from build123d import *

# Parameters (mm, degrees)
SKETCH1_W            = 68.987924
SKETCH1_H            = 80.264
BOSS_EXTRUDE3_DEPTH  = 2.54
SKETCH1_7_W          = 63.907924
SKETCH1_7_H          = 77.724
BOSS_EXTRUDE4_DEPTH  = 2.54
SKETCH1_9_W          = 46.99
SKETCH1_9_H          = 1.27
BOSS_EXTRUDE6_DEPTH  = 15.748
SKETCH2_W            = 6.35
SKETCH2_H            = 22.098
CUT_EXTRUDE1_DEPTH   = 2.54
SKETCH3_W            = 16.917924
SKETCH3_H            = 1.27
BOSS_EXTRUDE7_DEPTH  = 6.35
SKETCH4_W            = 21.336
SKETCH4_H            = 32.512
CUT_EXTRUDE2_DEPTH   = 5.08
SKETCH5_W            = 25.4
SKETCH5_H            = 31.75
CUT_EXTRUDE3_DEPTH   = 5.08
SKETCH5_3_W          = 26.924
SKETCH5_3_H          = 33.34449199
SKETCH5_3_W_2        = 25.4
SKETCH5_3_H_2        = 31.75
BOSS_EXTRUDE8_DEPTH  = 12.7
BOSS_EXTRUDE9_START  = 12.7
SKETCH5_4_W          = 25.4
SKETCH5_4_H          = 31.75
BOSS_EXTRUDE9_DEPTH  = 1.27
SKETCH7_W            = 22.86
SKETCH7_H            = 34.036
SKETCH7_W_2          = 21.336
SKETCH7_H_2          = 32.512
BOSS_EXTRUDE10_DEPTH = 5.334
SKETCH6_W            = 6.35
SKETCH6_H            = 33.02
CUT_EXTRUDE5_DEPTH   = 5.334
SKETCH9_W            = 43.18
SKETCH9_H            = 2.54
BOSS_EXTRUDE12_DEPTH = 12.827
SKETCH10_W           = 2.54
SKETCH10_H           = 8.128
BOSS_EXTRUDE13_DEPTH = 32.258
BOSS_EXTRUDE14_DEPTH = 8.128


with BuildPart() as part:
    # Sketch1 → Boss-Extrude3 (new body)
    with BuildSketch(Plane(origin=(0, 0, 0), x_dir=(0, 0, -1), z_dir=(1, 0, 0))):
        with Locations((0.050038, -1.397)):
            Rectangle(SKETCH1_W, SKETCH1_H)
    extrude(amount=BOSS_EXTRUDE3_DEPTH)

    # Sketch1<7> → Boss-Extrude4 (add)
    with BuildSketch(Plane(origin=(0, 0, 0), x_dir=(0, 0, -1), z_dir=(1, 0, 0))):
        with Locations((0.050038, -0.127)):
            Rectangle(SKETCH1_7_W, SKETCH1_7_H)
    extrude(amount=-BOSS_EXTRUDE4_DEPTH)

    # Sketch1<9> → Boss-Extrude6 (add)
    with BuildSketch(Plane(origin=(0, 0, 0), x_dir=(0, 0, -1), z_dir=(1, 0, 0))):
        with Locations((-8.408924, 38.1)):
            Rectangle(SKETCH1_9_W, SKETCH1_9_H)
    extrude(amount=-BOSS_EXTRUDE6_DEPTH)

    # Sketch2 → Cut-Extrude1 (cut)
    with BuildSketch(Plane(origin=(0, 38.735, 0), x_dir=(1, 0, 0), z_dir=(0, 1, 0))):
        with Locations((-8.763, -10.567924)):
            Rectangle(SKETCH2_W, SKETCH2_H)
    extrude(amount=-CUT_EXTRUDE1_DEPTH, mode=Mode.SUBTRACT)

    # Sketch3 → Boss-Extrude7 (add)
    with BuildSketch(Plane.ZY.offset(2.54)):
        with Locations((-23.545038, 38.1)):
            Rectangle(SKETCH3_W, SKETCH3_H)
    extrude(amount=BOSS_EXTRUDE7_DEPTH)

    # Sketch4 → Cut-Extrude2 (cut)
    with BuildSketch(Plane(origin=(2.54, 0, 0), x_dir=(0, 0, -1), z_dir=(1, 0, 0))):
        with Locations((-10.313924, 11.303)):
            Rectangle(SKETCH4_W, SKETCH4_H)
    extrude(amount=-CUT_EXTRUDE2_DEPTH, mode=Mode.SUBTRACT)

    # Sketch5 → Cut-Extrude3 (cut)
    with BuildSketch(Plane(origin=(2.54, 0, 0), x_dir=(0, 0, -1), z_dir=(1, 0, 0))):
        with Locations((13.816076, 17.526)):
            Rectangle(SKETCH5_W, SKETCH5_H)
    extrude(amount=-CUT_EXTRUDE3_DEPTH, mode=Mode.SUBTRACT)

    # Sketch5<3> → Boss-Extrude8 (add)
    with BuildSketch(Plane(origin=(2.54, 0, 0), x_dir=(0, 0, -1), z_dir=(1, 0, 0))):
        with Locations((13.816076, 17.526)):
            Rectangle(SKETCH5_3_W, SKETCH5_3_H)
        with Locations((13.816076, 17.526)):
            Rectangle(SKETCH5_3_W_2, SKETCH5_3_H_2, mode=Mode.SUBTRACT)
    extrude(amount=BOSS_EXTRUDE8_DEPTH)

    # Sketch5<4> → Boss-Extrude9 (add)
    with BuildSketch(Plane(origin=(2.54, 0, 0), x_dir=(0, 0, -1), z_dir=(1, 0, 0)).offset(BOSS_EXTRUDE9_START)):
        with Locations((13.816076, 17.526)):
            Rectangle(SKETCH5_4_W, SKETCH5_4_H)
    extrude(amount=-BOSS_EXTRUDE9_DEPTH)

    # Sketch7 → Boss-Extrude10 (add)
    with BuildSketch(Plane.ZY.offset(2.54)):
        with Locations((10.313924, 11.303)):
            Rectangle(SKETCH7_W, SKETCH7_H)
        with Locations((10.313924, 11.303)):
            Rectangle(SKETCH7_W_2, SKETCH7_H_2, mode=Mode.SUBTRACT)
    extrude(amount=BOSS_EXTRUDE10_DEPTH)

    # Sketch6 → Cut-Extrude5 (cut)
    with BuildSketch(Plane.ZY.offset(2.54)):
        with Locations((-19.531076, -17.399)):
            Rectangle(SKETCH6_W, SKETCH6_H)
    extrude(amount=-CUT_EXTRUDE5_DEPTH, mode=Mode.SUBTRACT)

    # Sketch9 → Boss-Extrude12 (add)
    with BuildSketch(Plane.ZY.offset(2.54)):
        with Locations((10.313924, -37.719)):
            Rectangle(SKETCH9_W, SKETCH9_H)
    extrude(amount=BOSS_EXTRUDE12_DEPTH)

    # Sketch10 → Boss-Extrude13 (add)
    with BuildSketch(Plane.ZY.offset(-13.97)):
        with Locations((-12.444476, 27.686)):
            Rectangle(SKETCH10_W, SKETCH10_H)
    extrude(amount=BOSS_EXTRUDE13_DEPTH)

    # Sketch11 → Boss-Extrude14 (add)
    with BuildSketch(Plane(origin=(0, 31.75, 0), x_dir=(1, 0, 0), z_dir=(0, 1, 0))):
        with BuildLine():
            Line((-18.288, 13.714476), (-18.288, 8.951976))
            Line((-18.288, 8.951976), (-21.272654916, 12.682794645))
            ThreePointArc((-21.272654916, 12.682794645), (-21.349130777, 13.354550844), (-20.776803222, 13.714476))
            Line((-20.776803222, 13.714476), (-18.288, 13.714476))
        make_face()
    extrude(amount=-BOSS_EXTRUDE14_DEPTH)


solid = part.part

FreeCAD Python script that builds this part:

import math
import FreeCAD as App
import Part
import Sketcher

V = App.Vector
Q = App.Units.Quantity

doc = App.newDocument("Part")
body = doc.addObject("PartDesign::Body", "Body")

# Sketch on YZ plane
sketch1 = body.newObject("Sketcher::SketchObject", "Sketch")
sketch1.AttachmentSupport = (doc.getObject("YZ_Plane"), [""])
sketch1.MapMode = "FlatFace"
sketch1.addGeometry([
    Part.LineSegment(V(39, 34, 0), V(-42, 34, 0)),
    Part.LineSegment(V(-42, 34, 0), V(-42, -35, 0)),
    Part.LineSegment(V(-42, -35, 0), V(39, -35, 0)),
    Part.LineSegment(V(39, -35, 0), V(39, 34, 0)),
], False)
sketch1.addConstraint([
    Sketcher.Constraint("Coincident", 0, 2, 1, 1),
    Sketcher.Constraint("Coincident", 1, 2, 2, 1),
    Sketcher.Constraint("Coincident", 2, 2, 3, 1),
    Sketcher.Constraint("Coincident", 3, 2, 0, 1),
    Sketcher.Constraint("Horizontal", 0),
    Sketcher.Constraint("Vertical", 1),
    Sketcher.Constraint("Horizontal", 2),
    Sketcher.Constraint("Vertical", 3),
    Sketcher.Constraint("DistanceX", 0, 2, 0, 1, Q("3.16 in")),
    Sketcher.Constraint("DistanceY", 1, 2, -1, 1, Q("1.36 in")),
    Sketcher.Constraint("DistanceX", 0, 2, -1, 1, Q("1.635 in")),
    Sketcher.Constraint("DistanceY", 1, 2, 1, 1, Q("68.987924 mm")),
])
pad1 = body.newObject("PartDesign::Pad", "Pad")
pad1.Profile = sketch1
pad1.Length = Q("0.1 in")

# Sketch on YZ plane
sketch2 = body.newObject("Sketcher::SketchObject", "Sketch001")
sketch2.AttachmentSupport = (doc.getObject("YZ_Plane"), [""])
sketch2.MapMode = "FlatFace"
sketch2.addGeometry([
    Part.LineSegment(V(39, 32, 0), V(-39, 32, 0)),
    Part.LineSegment(V(-39, 32, 0), V(-39, -32, 0)),
    Part.LineSegment(V(-39, -32, 0), V(39, -32, 0)),
    Part.LineSegment(V(39, -32, 0), V(39, 32, 0)),
], False)
sketch2.addConstraint([
    Sketcher.Constraint("Coincident", 0, 2, 1, 1),
    Sketcher.Constraint("Coincident", 1, 2, 2, 1),
    Sketcher.Constraint("Coincident", 2, 2, 3, 1),
    Sketcher.Constraint("Coincident", 3, 2, 0, 1),
    Sketcher.Constraint("Horizontal", 0),
    Sketcher.Constraint("Vertical", 1),
    Sketcher.Constraint("Horizontal", 2),
    Sketcher.Constraint("Vertical", 3),
    Sketcher.Constraint("DistanceX", 0, 2, 0, 1, Q("3.06 in")),
    Sketcher.Constraint("DistanceY", 1, 2, -1, 1, Q("1.26 in")),
    Sketcher.Constraint("DistanceX", 0, 2, -1, 1, Q("1.535 in")),
    Sketcher.Constraint("DistanceY", 1, 2, 1, 1, Q("63.907924 mm")),
])
pad2 = body.newObject("PartDesign::Pad", "Pad001")
pad2.Profile = sketch2
pad2.Length = Q("0.1 in")
pad2.Reversed = True

# Sketch on YZ plane
sketch3 = body.newObject("Sketcher::SketchObject", "Sketch002")
sketch3.AttachmentSupport = (doc.getObject("YZ_Plane"), [""])
sketch3.MapMode = "FlatFace"
sketch3.addGeometry([
    Part.LineSegment(V(38.7, 31.9, 0), V(37.5, 31.9, 0)),
    Part.LineSegment(V(37.5, 31.9, 0), V(37.5, -15.1, 0)),
    Part.LineSegment(V(37.5, -15.1, 0), V(38.7, -15.1, 0)),
    Part.LineSegment(V(38.7, -15.1, 0), V(38.7, 31.9, 0)),
], False)
sketch3.addConstraint([
    Sketcher.Constraint("Coincident", 0, 2, 1, 1),
    Sketcher.Constraint("Coincident", 1, 2, 2, 1),
    Sketcher.Constraint("Coincident", 2, 2, 3, 1),
    Sketcher.Constraint("Coincident", 3, 2, 0, 1),
    Sketcher.Constraint("Horizontal", 0),
    Sketcher.Constraint("Vertical", 1),
    Sketcher.Constraint("Horizontal", 2),
    Sketcher.Constraint("Vertical", 3),
    Sketcher.Constraint("DistanceX", 0, 2, 0, 1, Q("0.05 in")),
    Sketcher.Constraint("DistanceY", 1, 2, 1, 1, Q("1.85 in")),
    Sketcher.Constraint("DistanceX", -1, 1, 0, 2, Q("1.475 in")),
    Sketcher.Constraint("DistanceY", -1, 1, 0, 2, Q("31.903924 mm")),
])
pad3 = body.newObject("PartDesign::Pad", "Pad002")
pad3.Profile = sketch3
pad3.Length = Q("0.62 in")
pad3.Reversed = True

# Sketch on XZ plane
sketch4 = body.newObject("Sketcher::SketchObject", "Sketch003")
sketch4.AttachmentSupport = (doc.getObject("XZ_Plane"), [""])
sketch4.MapMode = "FlatFace"
sketch4.AttachmentOffset = App.Placement(V(0, 0, -1.525 * 25.4), App.Rotation())
sketch4.addGeometry([
    Part.LineSegment(V(-12, 0, 0), V(-12, 22, 0)),
    Part.LineSegment(V(-12, 22, 0), V(-6, 22, 0)),
    Part.LineSegment(V(-6, 22, 0), V(-6, 0, 0)),
    Part.LineSegment(V(-6, 0, 0), V(-12, 0, 0)),
], False)
sketch4.addConstraint([
    Sketcher.Constraint("Coincident", 0, 2, 1, 1),
    Sketcher.Constraint("Coincident", 1, 2, 2, 1),
    Sketcher.Constraint("Coincident", 2, 2, 3, 1),
    Sketcher.Constraint("Coincident", 3, 2, 0, 1),
    Sketcher.Constraint("Vertical", 0),
    Sketcher.Constraint("Horizontal", 1),
    Sketcher.Constraint("Vertical", 2),
    Sketcher.Constraint("Horizontal", 3),
    Sketcher.Constraint("DistanceX", 1, 1, 1, 2, Q("0.25 in")),
    Sketcher.Constraint("DistanceY", 0, 1, 0, 2, Q("0.87 in")),
    Sketcher.Constraint("DistanceX", 0, 2, -1, 1, Q("0.47 in")),
    Sketcher.Constraint("DistanceY", -1, 1, 0, 2, Q("21.616924 mm")),
])
pocket1 = body.newObject("PartDesign::Pocket", "Pocket")
pocket1.Profile = sketch4
pocket1.Length = Q("0.1 in")
pocket1.Reversed = True

# Sketch on YZ plane
sketch5 = body.newObject("Sketcher::SketchObject", "Sketch004")
sketch5.AttachmentSupport = (doc.getObject("YZ_Plane"), [""])
sketch5.MapMode = "FlatFace"
sketch5.AttachmentOffset = App.Placement(V(0, 0, -0.1 * 25.4), App.Rotation())
sketch5.addGeometry([
    Part.LineSegment(V(38.7, -32, 0), V(37.5, -32, 0)),
    Part.LineSegment(V(37.5, -32, 0), V(37.5, -15.1, 0)),
    Part.LineSegment(V(37.5, -15.1, 0), V(38.7, -15.1, 0)),
    Part.LineSegment(V(38.7, -15.1, 0), V(38.7, -32, 0)),
], False)
sketch5.addConstraint([
    Sketcher.Constraint("Coincident", 0, 2, 1, 1),
    Sketcher.Constraint("Coincident", 1, 2, 2, 1),
    Sketcher.Constraint("Coincident", 2, 2, 3, 1),
    Sketcher.Constraint("Coincident", 3, 2, 0, 1),
    Sketcher.Constraint("Horizontal", 0),
    Sketcher.Constraint("Vertical", 1),
    Sketcher.Constraint("Horizontal", 2),
    Sketcher.Constraint("Vertical", 3),
    Sketcher.Constraint("DistanceX", 0, 2, 0, 1, Q("0.05 in")),
    Sketcher.Constraint("DistanceY", 0, 2, -1, 1, Q("1.26 in")),
    Sketcher.Constraint("DistanceX", -1, 1, 0, 2, Q("1.475 in")),
    Sketcher.Constraint("DistanceY", 1, 1, 1, 2, Q("16.917924 mm")),
])
pad4 = body.newObject("PartDesign::Pad", "Pad003")
pad4.Profile = sketch5
pad4.Length = Q("0.25 in")
pad4.Reversed = True

# Sketch on YZ plane
sketch6 = body.newObject("Sketcher::SketchObject", "Sketch005")
sketch6.AttachmentSupport = (doc.getObject("YZ_Plane"), [""])
sketch6.MapMode = "FlatFace"
sketch6.AttachmentOffset = App.Placement(V(0, 0, 0.1 * 25.4), App.Rotation())
sketch6.addGeometry([
    Part.LineSegment(V(28, 21, 0), V(-5, 21, 0)),
    Part.LineSegment(V(-5, 21, 0), V(-5, 0, 0)),
    Part.LineSegment(V(-5, 0, 0), V(28, 0, 0)),
    Part.LineSegment(V(28, 0, 0), V(28, 21, 0)),
], False)
sketch6.addConstraint([
    Sketcher.Constraint("Coincident", 0, 2, 1, 1),
    Sketcher.Constraint("Coincident", 1, 2, 2, 1),
    Sketcher.Constraint("Coincident", 2, 2, 3, 1),
    Sketcher.Constraint("Coincident", 3, 2, 0, 1),
    Sketcher.Constraint("Horizontal", 0),
    Sketcher.Constraint("Vertical", 1),
    Sketcher.Constraint("Horizontal", 2),
    Sketcher.Constraint("Vertical", 3),
    Sketcher.Constraint("DistanceX", 0, 2, 0, 1, Q("1.28 in")),
    Sketcher.Constraint("DistanceY", 1, 2, 1, 1, Q("0.84 in")),
    Sketcher.Constraint("DistanceX", 0, 2, -1, 1, Q("0.195 in")),
    Sketcher.Constraint("DistanceY", -1, 1, 0, 2, Q("20.981924 mm")),
])
pocket2 = body.newObject("PartDesign::Pocket", "Pocket001")
pocket2.Profile = sketch6
pocket2.Length = Q("0.2 in")

# Sketch on YZ plane
sketch7 = body.newObject("Sketcher::SketchObject", "Sketch006")
sketch7.AttachmentSupport = (doc.getObject("YZ_Plane"), [""])
sketch7.MapMode = "FlatFace"
sketch7.AttachmentOffset = App.Placement(V(0, 0, 0.1 * 25.4), App.Rotation())
sketch7.addGeometry([
    Part.LineSegment(V(33, -1, 0), V(2, -1, 0)),
    Part.LineSegment(V(2, -1, 0), V(2, -27, 0)),
    Part.LineSegment(V(2, -27, 0), V(33, -27, 0)),
    Part.LineSegment(V(33, -27, 0), V(33, -1, 0)),
], False)
sketch7.addConstraint([
    Sketcher.Constraint("Coincident", 0, 2, 1, 1),
    Sketcher.Constraint("Coincident", 1, 2, 2, 1),
    Sketcher.Constraint("Coincident", 2, 2, 3, 1),
    Sketcher.Constraint("Coincident", 3, 2, 0, 1),
    Sketcher.Constraint("Horizontal", 0),
    Sketcher.Constraint("Vertical", 1),
    Sketcher.Constraint("Horizontal", 2),
    Sketcher.Constraint("Vertical", 3),
    Sketcher.Constraint("DistanceY", 1, 2, 1, 1, Q("1 in")),
    Sketcher.Constraint("DistanceX", 0, 2, 0, 1, Q("1.25 in")),
    Sketcher.Constraint("DistanceX", -1, 1, 0, 2, Q("0.065 in")),
    Sketcher.Constraint("DistanceY", 0, 2, -1, 1, Q("1.116076 mm")),
])
pocket3 = body.newObject("PartDesign::Pocket", "Pocket002")
pocket3.Profile = sketch7
pocket3.Length = Q("0.2 in")

# Sketch on YZ plane
sketch8 = body.newObject("Sketcher::SketchObject", "Sketch007")
sketch8.AttachmentSupport = (doc.getObject("YZ_Plane"), [""])
sketch8.MapMode = "FlatFace"
sketch8.AttachmentOffset = App.Placement(V(0, 0, 0.1 * 25.4), App.Rotation())
sketch8.addGeometry([
    Part.LineSegment(V(34, 0, 0), V(1, 0, 0)),  # 0
    Part.LineSegment(V(1, 0, 0), V(1, -27, 0)),  # 1
    Part.LineSegment(V(1, -27, 0), V(34, -27, 0)),  # 2
    Part.LineSegment(V(34, -27, 0), V(34, 0, 0)),  # 3
    Part.LineSegment(V(2, -27, 0), V(2, -1, 0)),  # 4
    Part.LineSegment(V(2, -1, 0), V(33, -1, 0)),  # 5
    Part.LineSegment(V(33, -1, 0), V(33, -27, 0)),  # 6
    Part.LineSegment(V(33, -27, 0), V(2, -27, 0)),  # 7
], False)
sketch8.addConstraint([
    Sketcher.Constraint("Coincident", 0, 2, 1, 1),
    Sketcher.Constraint("Coincident", 1, 2, 2, 1),
    Sketcher.Constraint("Coincident", 2, 2, 3, 1),
    Sketcher.Constraint("Coincident", 3, 2, 0, 1),
    Sketcher.Constraint("Coincident", 4, 2, 5, 1),
    Sketcher.Constraint("Coincident", 5, 2, 6, 1),
    Sketcher.Constraint("Coincident", 6, 2, 7, 1),
    Sketcher.Constraint("Coincident", 7, 2, 4, 1),
    Sketcher.Constraint("Horizontal", 0),
    Sketcher.Constraint("Vertical", 1),
    Sketcher.Constraint("Horizontal", 2),
    Sketcher.Constraint("Vertical", 3),
    Sketcher.Constraint("Vertical", 4),
    Sketcher.Constraint("Horizontal", 5),
    Sketcher.Constraint("Vertical", 6),
    Sketcher.Constraint("Horizontal", 7),
    Sketcher.Constraint("DistanceY", 4, 1, 4, 2, Q("1 in")),
    Sketcher.Constraint("DistanceX", 5, 1, 5, 2, Q("1.25 in")),
    Sketcher.Constraint("DistanceY", 1, 2, 1, 1, Q("1.06 in")),
    Sketcher.Constraint("DistanceY", 4, 2, 0, 2, Q("0.03 in")),
    Sketcher.Constraint("DistanceX", -1, 1, 4, 2, Q("0.065 in")),
    Sketcher.Constraint("DistanceX", 0, 2, 0, 1, Q("33.344492 mm")),
    Sketcher.Constraint("DistanceX", -1, 1, 0, 2, Q("0.853754 mm")),
    Sketcher.Constraint("DistanceY", 0, 2, -1, 1, Q("0.354076 mm")),
])
pad5 = body.newObject("PartDesign::Pad", "Pad004")
pad5.Profile = sketch8
pad5.Length = Q("0.5 in")

# Sketch on YZ plane
sketch9 = body.newObject("Sketcher::SketchObject", "Sketch008")
sketch9.AttachmentSupport = (doc.getObject("YZ_Plane"), [""])
sketch9.MapMode = "FlatFace"
sketch9.AttachmentOffset = App.Placement(V(0, 0, 0.6 * 25.4), App.Rotation())
sketch9.addGeometry([
    Part.LineSegment(V(33, -1, 0), V(2, -1, 0)),
    Part.LineSegment(V(2, -1, 0), V(2, -27, 0)),
    Part.LineSegment(V(2, -27, 0), V(33, -27, 0)),
    Part.LineSegment(V(33, -27, 0), V(33, -1, 0)),
], False)
sketch9.addConstraint([
    Sketcher.Constraint("Coincident", 0, 2, 1, 1),
    Sketcher.Constraint("Coincident", 1, 2, 2, 1),
    Sketcher.Constraint("Coincident", 2, 2, 3, 1),
    Sketcher.Constraint("Coincident", 3, 2, 0, 1),
    Sketcher.Constraint("Horizontal", 0),
    Sketcher.Constraint("Vertical", 1),
    Sketcher.Constraint("Horizontal", 2),
    Sketcher.Constraint("Vertical", 3),
    Sketcher.Constraint("DistanceY", 1, 2, 1, 1, Q("1 in")),
    Sketcher.Constraint("DistanceX", 0, 2, 0, 1, Q("1.25 in")),
    Sketcher.Constraint("DistanceX", -1, 1, 0, 2, Q("0.065 in")),
    Sketcher.Constraint("DistanceY", 0, 2, -1, 1, Q("1.116076 mm")),
])
pad6 = body.newObject("PartDesign::Pad", "Pad005")
pad6.Profile = sketch9
pad6.Length = Q("0.05 in")
pad6.Reversed = True

# Sketch on YZ plane
sketch10 = body.newObject("Sketcher::SketchObject", "Sketch009")
sketch10.AttachmentSupport = (doc.getObject("YZ_Plane"), [""])
sketch10.MapMode = "FlatFace"
sketch10.AttachmentOffset = App.Placement(V(0, 0, -0.1 * 25.4), App.Rotation())
sketch10.addGeometry([
    Part.LineSegment(V(28, -1, 0), V(-6, -1, 0)),  # 0
    Part.LineSegment(V(-6, -1, 0), V(-6, 22, 0)),  # 1
    Part.LineSegment(V(-6, 22, 0), V(28, 22, 0)),  # 2
    Part.LineSegment(V(28, 22, 0), V(28, -1, 0)),  # 3
    Part.LineSegment(V(-5, 21, 0), V(-5, 0, 0)),  # 4
    Part.LineSegment(V(-5, 0, 0), V(28, 0, 0)),  # 5
    Part.LineSegment(V(28, 0, 0), V(28, 21, 0)),  # 6
    Part.LineSegment(V(28, 21, 0), V(-5, 21, 0)),  # 7
], False)
sketch10.addConstraint([
    Sketcher.Constraint("Coincident", 0, 2, 1, 1),
    Sketcher.Constraint("Coincident", 1, 2, 2, 1),
    Sketcher.Constraint("Coincident", 2, 2, 3, 1),
    Sketcher.Constraint("Coincident", 3, 2, 0, 1),
    Sketcher.Constraint("Coincident", 4, 2, 5, 1),
    Sketcher.Constraint("Coincident", 5, 2, 6, 1),
    Sketcher.Constraint("Coincident", 6, 2, 7, 1),
    Sketcher.Constraint("Coincident", 7, 2, 4, 1),
    Sketcher.Constraint("Horizontal", 0),
    Sketcher.Constraint("Vertical", 1),
    Sketcher.Constraint("Horizontal", 2),
    Sketcher.Constraint("Vertical", 3),
    Sketcher.Constraint("Vertical", 4),
    Sketcher.Constraint("Horizontal", 5),
    Sketcher.Constraint("Vertical", 6),
    Sketcher.Constraint("Horizontal", 7),
    Sketcher.Constraint("DistanceY", 1, 1, 1, 2, Q("0.9 in")),
    Sketcher.Constraint("DistanceX", 0, 2, 0, 1, Q("1.34 in")),
    Sketcher.Constraint("DistanceX", 5, 1, 5, 2, Q("1.28 in")),
    Sketcher.Constraint("DistanceY", 4, 2, 4, 1, Q("0.84 in")),
    Sketcher.Constraint("DistanceX", 0, 2, 4, 2, Q("0.03 in")),
    Sketcher.Constraint("DistanceY", 0, 2, 4, 2, Q("0.03 in")),
    Sketcher.Constraint("DistanceX", 0, 2, -1, 1, Q("0.225 in")),
    Sketcher.Constraint("DistanceY", 0, 2, -1, 1, Q("1.116076 mm")),
])
pad7 = body.newObject("PartDesign::Pad", "Pad006")
pad7.Profile = sketch10
pad7.Length = Q("0.21 in")
pad7.Reversed = True

# Sketch on YZ plane
sketch11 = body.newObject("Sketcher::SketchObject", "Sketch010")
sketch11.AttachmentSupport = (doc.getObject("YZ_Plane"), [""])
sketch11.MapMode = "FlatFace"
sketch11.AttachmentOffset = App.Placement(V(0, 0, -0.1 * 25.4), App.Rotation())
sketch11.addGeometry([
    Part.LineSegment(V(-1, -23, 0), V(-34, -23, 0)),
    Part.LineSegment(V(-34, -23, 0), V(-34, -16, 0)),
    Part.LineSegment(V(-34, -16, 0), V(-1, -16, 0)),
    Part.LineSegment(V(-1, -16, 0), V(-1, -23, 0)),
], False)
sketch11.addConstraint([
    Sketcher.Constraint("Coincident", 0, 2, 1, 1),
    Sketcher.Constraint("Coincident", 1, 2, 2, 1),
    Sketcher.Constraint("Coincident", 2, 2, 3, 1),
    Sketcher.Constraint("Coincident", 3, 2, 0, 1),
    Sketcher.Constraint("Horizontal", 0),
    Sketcher.Constraint("Vertical", 1),
    Sketcher.Constraint("Horizontal", 2),
    Sketcher.Constraint("Vertical", 3),
    Sketcher.Constraint("DistanceX", 0, 2, 0, 1, Q("1.3 in")),
    Sketcher.Constraint("DistanceY", 1, 1, 1, 2, Q("0.25 in")),
    Sketcher.Constraint("DistanceX", 0, 2, -1, 1, Q("1.335 in")),
    Sketcher.Constraint("DistanceY", 0, 2, -1, 1, Q("22.706076 mm")),
])
pocket4 = body.newObject("PartDesign::Pocket", "Pocket003")
pocket4.Profile = sketch11
pocket4.Length = Q("0.21 in")
pocket4.Reversed = True

# Sketch on YZ plane
sketch12 = body.newObject("Sketcher::SketchObject", "Sketch011")
sketch12.AttachmentSupport = (doc.getObject("YZ_Plane"), [""])
sketch12.MapMode = "FlatFace"
sketch12.AttachmentOffset = App.Placement(V(0, 0, -0.1 * 25.4), App.Rotation())
sketch12.addGeometry([
    Part.LineSegment(V(-36.4, -11.3, 0), V(-39, -11.3, 0)),
    Part.LineSegment(V(-39, -11.3, 0), V(-39, 31.9, 0)),
    Part.LineSegment(V(-39, 31.9, 0), V(-36.4, 31.9, 0)),
    Part.LineSegment(V(-36.4, 31.9, 0), V(-36.4, -11.3, 0)),
], False)
sketch12.addConstraint([
    Sketcher.Constraint("Coincident", 0, 2, 1, 1),
    Sketcher.Constraint("Coincident", 1, 2, 2, 1),
    Sketcher.Constraint("Coincident", 2, 2, 3, 1),
    Sketcher.Constraint("Coincident", 3, 2, 0, 1),
    Sketcher.Constraint("Horizontal", 0),
    Sketcher.Constraint("Vertical", 1),
    Sketcher.Constraint("Horizontal", 2),
    Sketcher.Constraint("Vertical", 3),
    Sketcher.Constraint("DistanceX", 0, 2, 0, 1, Q("0.1 in")),
    Sketcher.Constraint("DistanceY", 1, 1, 1, 2, Q("1.7 in")),
    Sketcher.Constraint("DistanceX", 0, 2, -1, 1, Q("1.535 in")),
    Sketcher.Constraint("DistanceY", 0, 2, -1, 1, Q("11.276076 mm")),
])
pad8 = body.newObject("PartDesign::Pad", "Pad007")
pad8.Profile = sketch12
pad8.Length = Q("0.505 in")
pad8.Reversed = True

# Sketch on YZ plane
sketch13 = body.newObject("Sketcher::SketchObject", "Sketch012")
sketch13.AttachmentSupport = (doc.getObject("YZ_Plane"), [""])
sketch13.MapMode = "FlatFace"
sketch13.AttachmentOffset = App.Placement(V(0, 0, 0.55 * 25.4), App.Rotation())
sketch13.addGeometry([
    Part.LineSegment(V(31.8, -13.7, 0), V(23.6, -13.7, 0)),
    Part.LineSegment(V(23.6, -13.7, 0), V(23.6, -11.2, 0)),
    Part.LineSegment(V(23.6, -11.2, 0), V(31.8, -11.2, 0)),
    Part.LineSegment(V(31.8, -11.2, 0), V(31.8, -13.7, 0)),
], False)
sketch13.addConstraint([
    Sketcher.Constraint("Coincident", 0, 2, 1, 1),
    Sketcher.Constraint("Coincident", 1, 2, 2, 1),
    Sketcher.Constraint("Coincident", 2, 2, 3, 1),
    Sketcher.Constraint("Coincident", 3, 2, 0, 1),
    Sketcher.Constraint("Horizontal", 0),
    Sketcher.Constraint("Vertical", 1),
    Sketcher.Constraint("Horizontal", 2),
    Sketcher.Constraint("Vertical", 3),
    Sketcher.Constraint("DistanceY", 1, 1, 1, 2, Q("0.1 in")),
    Sketcher.Constraint("DistanceX", 0, 2, 0, 1, Q("0.32 in")),
    Sketcher.Constraint("DistanceX", -1, 1, 0, 2, Q("0.93 in")),
    Sketcher.Constraint("DistanceY", 0, 2, -1, 1, Q("13.714476 mm")),
])
pad9 = body.newObject("PartDesign::Pad", "Pad008")
pad9.Profile = sketch13
pad9.Length = Q("1.27 in")
pad9.Reversed = True

# Sketch on XZ plane
sketch14 = body.newObject("Sketcher::SketchObject", "Sketch013")
sketch14.AttachmentSupport = (doc.getObject("XZ_Plane"), [""])
sketch14.MapMode = "FlatFace"
sketch14.AttachmentOffset = App.Placement(V(0, 0, -1.25 * 25.4), App.Rotation())
sketch14.addGeometry([
    Part.LineSegment(V(-18.3, -9, 0), V(-18.3, -13.7, 0)),
    Part.LineSegment(V(-18.3, -13.7, 0), V(-20.8, -13.7, 0)),
    Part.ArcOfCircle(Part.Circle(V(-20.8, -13.1, 0), V(0, 0, 1), 0.6), math.radians(141), math.radians(270)),
    Part.LineSegment(V(-21.3, -12.7, 0), V(-18.3, -9, 0)),
], False)
sketch14.addConstraint([
    Sketcher.Constraint("Coincident", 0, 2, 1, 1),
    Sketcher.Constraint("Tangent", 1, 2, 2, 2),
    Sketcher.Constraint("Tangent", 2, 1, 3, 1),
    Sketcher.Constraint("Coincident", 3, 2, 0, 1),
    Sketcher.Constraint("Vertical", 0),
    Sketcher.Constraint("Horizontal", 1),
    Sketcher.Constraint("Radius", 2, Q("0.025 in")),
    Sketcher.Constraint("DistanceY", 0, 2, 0, 1, Q("0.1875 in")),
    Sketcher.Constraint("DistanceX", 0, 2, -1, 1, Q("0.72 in")),
    Sketcher.Constraint("Distance", 3, Q("4.777779 mm")),
    Sketcher.Constraint("DistanceY", 2, 3, -1, 1, Q("13.079476 mm")),
])
pad10 = body.newObject("PartDesign::Pad", "Pad009")
pad10.Profile = sketch14
pad10.Length = Q("0.32 in")

doc.recompute()
